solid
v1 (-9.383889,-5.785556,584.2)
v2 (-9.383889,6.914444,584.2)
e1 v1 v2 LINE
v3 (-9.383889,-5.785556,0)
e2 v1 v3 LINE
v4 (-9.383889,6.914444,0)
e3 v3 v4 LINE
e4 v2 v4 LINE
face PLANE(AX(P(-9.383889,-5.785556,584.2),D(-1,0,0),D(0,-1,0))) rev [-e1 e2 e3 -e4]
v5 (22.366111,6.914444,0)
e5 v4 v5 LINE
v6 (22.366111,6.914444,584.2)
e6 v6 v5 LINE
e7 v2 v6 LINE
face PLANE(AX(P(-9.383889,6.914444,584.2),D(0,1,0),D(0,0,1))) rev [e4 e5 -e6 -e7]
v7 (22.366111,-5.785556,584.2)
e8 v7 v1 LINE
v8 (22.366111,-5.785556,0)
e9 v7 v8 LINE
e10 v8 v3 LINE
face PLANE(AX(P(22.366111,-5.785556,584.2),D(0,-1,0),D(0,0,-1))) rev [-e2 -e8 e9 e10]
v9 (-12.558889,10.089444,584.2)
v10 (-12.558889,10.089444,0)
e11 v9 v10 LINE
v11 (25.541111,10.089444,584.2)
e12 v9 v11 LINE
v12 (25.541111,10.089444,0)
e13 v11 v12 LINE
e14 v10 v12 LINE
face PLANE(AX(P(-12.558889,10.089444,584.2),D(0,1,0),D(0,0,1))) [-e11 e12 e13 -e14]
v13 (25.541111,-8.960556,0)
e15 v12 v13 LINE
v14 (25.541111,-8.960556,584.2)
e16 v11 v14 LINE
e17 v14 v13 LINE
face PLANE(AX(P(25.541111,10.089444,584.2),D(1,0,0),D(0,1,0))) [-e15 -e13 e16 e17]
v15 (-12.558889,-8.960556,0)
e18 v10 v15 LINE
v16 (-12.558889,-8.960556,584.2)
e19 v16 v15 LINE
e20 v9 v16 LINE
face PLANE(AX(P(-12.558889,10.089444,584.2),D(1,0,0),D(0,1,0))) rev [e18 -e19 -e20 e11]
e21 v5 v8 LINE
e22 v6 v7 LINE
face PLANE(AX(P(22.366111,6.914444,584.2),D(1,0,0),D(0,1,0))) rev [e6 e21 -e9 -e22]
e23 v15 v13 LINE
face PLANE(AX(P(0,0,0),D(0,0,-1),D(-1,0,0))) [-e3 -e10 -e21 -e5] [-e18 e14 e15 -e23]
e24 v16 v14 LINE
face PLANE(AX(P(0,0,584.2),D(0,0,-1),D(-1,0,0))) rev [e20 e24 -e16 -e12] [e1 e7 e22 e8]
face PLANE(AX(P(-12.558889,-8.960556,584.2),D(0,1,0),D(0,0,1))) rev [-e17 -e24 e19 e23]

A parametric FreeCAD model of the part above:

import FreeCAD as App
import Part
import Sketcher

V = App.Vector
Q = App.Units.Quantity


def add_polygon(sketch, points):
    """Adds a closed chain of lines whose ends are joined by coincident constraints."""
    first, n = sketch.GeometryCount, len(points)
    for a, b in zip(points, points[1:] + points[:1]):
        sketch.addGeometry(Part.LineSegment(App.Vector(*a, 0), App.Vector(*b, 0)), False)
    for i in range(n):
        sketch.addConstraint(Sketcher.Constraint("Coincident", first + i, 2, first + (i + 1) % n, 1))

doc = App.newDocument("Part")
params = doc.addObject("Spreadsheet::Sheet", "Params")
for row, (alias, value) in enumerate([
    ("sketch1_width", "1.5 in"),
    ("sketch1_height", "0.75 in"),
    ("pad1_length", "23 in"),
    ("sketch2_height", "0.5 in"),
    ("sketch2_width", "1.25 in"),
], start=1):
    params.set(f"A{row}", alias)
    params.set(f"B{row}", "=" + value)
    params.setAlias(f"B{row}", alias)

body = doc.addObject("PartDesign::Body", "Body")

# Sketch on XY plane
sketch1 = body.newObject("Sketcher::SketchObject", "Sketch")
sketch1.AttachmentSupport = (doc.getObject("XY_Plane"), [""])
sketch1.MapMode = "FlatFace"
add_polygon(sketch1, [(-13, 10), (-13, -9), (26, -9), (26, 10)])  # lines 0-3
sketch1.addConstraint(Sketcher.Constraint("Vertical", 0))
sketch1.addConstraint(Sketcher.Constraint("Horizontal", 1))
sketch1.addConstraint(Sketcher.Constraint("Vertical", 2))
sketch1.addConstraint(Sketcher.Constraint("Horizontal", 3))
sketch1.addConstraint(Sketcher.Constraint("DistanceX", 1, 1, 1, 2, Q("1.5 in")))
sketch1.addConstraint(Sketcher.Constraint("DistanceY", 0, 2, 0, 1, Q("0.75 in")))
sketch1.addConstraint(Sketcher.Constraint("DistanceX", 0, 2, -1, 1, 12.558889))
sketch1.addConstraint(Sketcher.Constraint("DistanceY", 0, 2, -1, 1, 8.960556))
sketch1.setExpression("Constraints[8]", "Params.sketch1_width")
sketch1.setExpression("Constraints[9]", "Params.sketch1_height")
pad1 = body.newObject("PartDesign::Pad", "Pad")
pad1.Profile = sketch1
pad1.setExpression("Length", "Params.pad1_length")

# Sketch on XY plane
sketch2 = body.newObject("Sketcher::SketchObject", "Sketch001")
sketch2.AttachmentSupport = (doc.getObject("XY_Plane"), [""])
sketch2.MapMode = "FlatFace"
add_polygon(sketch2, [(22, 7), (22, -6), (-9, -6), (-9, 7)])  # lines 0-3
sketch2.addConstraint(Sketcher.Constraint("Vertical", 0))
sketch2.addConstraint(Sketcher.Constraint("Horizontal", 1))
sketch2.addConstraint(Sketcher.Constraint("Vertical", 2))
sketch2.addConstraint(Sketcher.Constraint("Horizontal", 3))
sketch2.addConstraint(Sketcher.Constraint("DistanceY", 0, 2, 0, 1, Q("0.5 in")))
sketch2.addConstraint(Sketcher.Constraint("DistanceX", 1, 2, 1, 1, Q("1.25 in")))
sketch2.addConstraint(Sketcher.Constraint("DistanceX", -1, 1, 0, 2, 22.366111))
sketch2.addConstraint(Sketcher.Constraint("DistanceY", 0, 2, -1, 1, 5.785556))
sketch2.setExpression("Constraints[8]", "Params.sketch2_height")
sketch2.setExpression("Constraints[9]", "Params.sketch2_width")
pocket1 = body.newObject("PartDesign::Pocket", "Pocket")
pocket1.Profile = sketch2
pocket1.Type = "ThroughAll"
pocket1.Reversed = True

doc.recompute()
